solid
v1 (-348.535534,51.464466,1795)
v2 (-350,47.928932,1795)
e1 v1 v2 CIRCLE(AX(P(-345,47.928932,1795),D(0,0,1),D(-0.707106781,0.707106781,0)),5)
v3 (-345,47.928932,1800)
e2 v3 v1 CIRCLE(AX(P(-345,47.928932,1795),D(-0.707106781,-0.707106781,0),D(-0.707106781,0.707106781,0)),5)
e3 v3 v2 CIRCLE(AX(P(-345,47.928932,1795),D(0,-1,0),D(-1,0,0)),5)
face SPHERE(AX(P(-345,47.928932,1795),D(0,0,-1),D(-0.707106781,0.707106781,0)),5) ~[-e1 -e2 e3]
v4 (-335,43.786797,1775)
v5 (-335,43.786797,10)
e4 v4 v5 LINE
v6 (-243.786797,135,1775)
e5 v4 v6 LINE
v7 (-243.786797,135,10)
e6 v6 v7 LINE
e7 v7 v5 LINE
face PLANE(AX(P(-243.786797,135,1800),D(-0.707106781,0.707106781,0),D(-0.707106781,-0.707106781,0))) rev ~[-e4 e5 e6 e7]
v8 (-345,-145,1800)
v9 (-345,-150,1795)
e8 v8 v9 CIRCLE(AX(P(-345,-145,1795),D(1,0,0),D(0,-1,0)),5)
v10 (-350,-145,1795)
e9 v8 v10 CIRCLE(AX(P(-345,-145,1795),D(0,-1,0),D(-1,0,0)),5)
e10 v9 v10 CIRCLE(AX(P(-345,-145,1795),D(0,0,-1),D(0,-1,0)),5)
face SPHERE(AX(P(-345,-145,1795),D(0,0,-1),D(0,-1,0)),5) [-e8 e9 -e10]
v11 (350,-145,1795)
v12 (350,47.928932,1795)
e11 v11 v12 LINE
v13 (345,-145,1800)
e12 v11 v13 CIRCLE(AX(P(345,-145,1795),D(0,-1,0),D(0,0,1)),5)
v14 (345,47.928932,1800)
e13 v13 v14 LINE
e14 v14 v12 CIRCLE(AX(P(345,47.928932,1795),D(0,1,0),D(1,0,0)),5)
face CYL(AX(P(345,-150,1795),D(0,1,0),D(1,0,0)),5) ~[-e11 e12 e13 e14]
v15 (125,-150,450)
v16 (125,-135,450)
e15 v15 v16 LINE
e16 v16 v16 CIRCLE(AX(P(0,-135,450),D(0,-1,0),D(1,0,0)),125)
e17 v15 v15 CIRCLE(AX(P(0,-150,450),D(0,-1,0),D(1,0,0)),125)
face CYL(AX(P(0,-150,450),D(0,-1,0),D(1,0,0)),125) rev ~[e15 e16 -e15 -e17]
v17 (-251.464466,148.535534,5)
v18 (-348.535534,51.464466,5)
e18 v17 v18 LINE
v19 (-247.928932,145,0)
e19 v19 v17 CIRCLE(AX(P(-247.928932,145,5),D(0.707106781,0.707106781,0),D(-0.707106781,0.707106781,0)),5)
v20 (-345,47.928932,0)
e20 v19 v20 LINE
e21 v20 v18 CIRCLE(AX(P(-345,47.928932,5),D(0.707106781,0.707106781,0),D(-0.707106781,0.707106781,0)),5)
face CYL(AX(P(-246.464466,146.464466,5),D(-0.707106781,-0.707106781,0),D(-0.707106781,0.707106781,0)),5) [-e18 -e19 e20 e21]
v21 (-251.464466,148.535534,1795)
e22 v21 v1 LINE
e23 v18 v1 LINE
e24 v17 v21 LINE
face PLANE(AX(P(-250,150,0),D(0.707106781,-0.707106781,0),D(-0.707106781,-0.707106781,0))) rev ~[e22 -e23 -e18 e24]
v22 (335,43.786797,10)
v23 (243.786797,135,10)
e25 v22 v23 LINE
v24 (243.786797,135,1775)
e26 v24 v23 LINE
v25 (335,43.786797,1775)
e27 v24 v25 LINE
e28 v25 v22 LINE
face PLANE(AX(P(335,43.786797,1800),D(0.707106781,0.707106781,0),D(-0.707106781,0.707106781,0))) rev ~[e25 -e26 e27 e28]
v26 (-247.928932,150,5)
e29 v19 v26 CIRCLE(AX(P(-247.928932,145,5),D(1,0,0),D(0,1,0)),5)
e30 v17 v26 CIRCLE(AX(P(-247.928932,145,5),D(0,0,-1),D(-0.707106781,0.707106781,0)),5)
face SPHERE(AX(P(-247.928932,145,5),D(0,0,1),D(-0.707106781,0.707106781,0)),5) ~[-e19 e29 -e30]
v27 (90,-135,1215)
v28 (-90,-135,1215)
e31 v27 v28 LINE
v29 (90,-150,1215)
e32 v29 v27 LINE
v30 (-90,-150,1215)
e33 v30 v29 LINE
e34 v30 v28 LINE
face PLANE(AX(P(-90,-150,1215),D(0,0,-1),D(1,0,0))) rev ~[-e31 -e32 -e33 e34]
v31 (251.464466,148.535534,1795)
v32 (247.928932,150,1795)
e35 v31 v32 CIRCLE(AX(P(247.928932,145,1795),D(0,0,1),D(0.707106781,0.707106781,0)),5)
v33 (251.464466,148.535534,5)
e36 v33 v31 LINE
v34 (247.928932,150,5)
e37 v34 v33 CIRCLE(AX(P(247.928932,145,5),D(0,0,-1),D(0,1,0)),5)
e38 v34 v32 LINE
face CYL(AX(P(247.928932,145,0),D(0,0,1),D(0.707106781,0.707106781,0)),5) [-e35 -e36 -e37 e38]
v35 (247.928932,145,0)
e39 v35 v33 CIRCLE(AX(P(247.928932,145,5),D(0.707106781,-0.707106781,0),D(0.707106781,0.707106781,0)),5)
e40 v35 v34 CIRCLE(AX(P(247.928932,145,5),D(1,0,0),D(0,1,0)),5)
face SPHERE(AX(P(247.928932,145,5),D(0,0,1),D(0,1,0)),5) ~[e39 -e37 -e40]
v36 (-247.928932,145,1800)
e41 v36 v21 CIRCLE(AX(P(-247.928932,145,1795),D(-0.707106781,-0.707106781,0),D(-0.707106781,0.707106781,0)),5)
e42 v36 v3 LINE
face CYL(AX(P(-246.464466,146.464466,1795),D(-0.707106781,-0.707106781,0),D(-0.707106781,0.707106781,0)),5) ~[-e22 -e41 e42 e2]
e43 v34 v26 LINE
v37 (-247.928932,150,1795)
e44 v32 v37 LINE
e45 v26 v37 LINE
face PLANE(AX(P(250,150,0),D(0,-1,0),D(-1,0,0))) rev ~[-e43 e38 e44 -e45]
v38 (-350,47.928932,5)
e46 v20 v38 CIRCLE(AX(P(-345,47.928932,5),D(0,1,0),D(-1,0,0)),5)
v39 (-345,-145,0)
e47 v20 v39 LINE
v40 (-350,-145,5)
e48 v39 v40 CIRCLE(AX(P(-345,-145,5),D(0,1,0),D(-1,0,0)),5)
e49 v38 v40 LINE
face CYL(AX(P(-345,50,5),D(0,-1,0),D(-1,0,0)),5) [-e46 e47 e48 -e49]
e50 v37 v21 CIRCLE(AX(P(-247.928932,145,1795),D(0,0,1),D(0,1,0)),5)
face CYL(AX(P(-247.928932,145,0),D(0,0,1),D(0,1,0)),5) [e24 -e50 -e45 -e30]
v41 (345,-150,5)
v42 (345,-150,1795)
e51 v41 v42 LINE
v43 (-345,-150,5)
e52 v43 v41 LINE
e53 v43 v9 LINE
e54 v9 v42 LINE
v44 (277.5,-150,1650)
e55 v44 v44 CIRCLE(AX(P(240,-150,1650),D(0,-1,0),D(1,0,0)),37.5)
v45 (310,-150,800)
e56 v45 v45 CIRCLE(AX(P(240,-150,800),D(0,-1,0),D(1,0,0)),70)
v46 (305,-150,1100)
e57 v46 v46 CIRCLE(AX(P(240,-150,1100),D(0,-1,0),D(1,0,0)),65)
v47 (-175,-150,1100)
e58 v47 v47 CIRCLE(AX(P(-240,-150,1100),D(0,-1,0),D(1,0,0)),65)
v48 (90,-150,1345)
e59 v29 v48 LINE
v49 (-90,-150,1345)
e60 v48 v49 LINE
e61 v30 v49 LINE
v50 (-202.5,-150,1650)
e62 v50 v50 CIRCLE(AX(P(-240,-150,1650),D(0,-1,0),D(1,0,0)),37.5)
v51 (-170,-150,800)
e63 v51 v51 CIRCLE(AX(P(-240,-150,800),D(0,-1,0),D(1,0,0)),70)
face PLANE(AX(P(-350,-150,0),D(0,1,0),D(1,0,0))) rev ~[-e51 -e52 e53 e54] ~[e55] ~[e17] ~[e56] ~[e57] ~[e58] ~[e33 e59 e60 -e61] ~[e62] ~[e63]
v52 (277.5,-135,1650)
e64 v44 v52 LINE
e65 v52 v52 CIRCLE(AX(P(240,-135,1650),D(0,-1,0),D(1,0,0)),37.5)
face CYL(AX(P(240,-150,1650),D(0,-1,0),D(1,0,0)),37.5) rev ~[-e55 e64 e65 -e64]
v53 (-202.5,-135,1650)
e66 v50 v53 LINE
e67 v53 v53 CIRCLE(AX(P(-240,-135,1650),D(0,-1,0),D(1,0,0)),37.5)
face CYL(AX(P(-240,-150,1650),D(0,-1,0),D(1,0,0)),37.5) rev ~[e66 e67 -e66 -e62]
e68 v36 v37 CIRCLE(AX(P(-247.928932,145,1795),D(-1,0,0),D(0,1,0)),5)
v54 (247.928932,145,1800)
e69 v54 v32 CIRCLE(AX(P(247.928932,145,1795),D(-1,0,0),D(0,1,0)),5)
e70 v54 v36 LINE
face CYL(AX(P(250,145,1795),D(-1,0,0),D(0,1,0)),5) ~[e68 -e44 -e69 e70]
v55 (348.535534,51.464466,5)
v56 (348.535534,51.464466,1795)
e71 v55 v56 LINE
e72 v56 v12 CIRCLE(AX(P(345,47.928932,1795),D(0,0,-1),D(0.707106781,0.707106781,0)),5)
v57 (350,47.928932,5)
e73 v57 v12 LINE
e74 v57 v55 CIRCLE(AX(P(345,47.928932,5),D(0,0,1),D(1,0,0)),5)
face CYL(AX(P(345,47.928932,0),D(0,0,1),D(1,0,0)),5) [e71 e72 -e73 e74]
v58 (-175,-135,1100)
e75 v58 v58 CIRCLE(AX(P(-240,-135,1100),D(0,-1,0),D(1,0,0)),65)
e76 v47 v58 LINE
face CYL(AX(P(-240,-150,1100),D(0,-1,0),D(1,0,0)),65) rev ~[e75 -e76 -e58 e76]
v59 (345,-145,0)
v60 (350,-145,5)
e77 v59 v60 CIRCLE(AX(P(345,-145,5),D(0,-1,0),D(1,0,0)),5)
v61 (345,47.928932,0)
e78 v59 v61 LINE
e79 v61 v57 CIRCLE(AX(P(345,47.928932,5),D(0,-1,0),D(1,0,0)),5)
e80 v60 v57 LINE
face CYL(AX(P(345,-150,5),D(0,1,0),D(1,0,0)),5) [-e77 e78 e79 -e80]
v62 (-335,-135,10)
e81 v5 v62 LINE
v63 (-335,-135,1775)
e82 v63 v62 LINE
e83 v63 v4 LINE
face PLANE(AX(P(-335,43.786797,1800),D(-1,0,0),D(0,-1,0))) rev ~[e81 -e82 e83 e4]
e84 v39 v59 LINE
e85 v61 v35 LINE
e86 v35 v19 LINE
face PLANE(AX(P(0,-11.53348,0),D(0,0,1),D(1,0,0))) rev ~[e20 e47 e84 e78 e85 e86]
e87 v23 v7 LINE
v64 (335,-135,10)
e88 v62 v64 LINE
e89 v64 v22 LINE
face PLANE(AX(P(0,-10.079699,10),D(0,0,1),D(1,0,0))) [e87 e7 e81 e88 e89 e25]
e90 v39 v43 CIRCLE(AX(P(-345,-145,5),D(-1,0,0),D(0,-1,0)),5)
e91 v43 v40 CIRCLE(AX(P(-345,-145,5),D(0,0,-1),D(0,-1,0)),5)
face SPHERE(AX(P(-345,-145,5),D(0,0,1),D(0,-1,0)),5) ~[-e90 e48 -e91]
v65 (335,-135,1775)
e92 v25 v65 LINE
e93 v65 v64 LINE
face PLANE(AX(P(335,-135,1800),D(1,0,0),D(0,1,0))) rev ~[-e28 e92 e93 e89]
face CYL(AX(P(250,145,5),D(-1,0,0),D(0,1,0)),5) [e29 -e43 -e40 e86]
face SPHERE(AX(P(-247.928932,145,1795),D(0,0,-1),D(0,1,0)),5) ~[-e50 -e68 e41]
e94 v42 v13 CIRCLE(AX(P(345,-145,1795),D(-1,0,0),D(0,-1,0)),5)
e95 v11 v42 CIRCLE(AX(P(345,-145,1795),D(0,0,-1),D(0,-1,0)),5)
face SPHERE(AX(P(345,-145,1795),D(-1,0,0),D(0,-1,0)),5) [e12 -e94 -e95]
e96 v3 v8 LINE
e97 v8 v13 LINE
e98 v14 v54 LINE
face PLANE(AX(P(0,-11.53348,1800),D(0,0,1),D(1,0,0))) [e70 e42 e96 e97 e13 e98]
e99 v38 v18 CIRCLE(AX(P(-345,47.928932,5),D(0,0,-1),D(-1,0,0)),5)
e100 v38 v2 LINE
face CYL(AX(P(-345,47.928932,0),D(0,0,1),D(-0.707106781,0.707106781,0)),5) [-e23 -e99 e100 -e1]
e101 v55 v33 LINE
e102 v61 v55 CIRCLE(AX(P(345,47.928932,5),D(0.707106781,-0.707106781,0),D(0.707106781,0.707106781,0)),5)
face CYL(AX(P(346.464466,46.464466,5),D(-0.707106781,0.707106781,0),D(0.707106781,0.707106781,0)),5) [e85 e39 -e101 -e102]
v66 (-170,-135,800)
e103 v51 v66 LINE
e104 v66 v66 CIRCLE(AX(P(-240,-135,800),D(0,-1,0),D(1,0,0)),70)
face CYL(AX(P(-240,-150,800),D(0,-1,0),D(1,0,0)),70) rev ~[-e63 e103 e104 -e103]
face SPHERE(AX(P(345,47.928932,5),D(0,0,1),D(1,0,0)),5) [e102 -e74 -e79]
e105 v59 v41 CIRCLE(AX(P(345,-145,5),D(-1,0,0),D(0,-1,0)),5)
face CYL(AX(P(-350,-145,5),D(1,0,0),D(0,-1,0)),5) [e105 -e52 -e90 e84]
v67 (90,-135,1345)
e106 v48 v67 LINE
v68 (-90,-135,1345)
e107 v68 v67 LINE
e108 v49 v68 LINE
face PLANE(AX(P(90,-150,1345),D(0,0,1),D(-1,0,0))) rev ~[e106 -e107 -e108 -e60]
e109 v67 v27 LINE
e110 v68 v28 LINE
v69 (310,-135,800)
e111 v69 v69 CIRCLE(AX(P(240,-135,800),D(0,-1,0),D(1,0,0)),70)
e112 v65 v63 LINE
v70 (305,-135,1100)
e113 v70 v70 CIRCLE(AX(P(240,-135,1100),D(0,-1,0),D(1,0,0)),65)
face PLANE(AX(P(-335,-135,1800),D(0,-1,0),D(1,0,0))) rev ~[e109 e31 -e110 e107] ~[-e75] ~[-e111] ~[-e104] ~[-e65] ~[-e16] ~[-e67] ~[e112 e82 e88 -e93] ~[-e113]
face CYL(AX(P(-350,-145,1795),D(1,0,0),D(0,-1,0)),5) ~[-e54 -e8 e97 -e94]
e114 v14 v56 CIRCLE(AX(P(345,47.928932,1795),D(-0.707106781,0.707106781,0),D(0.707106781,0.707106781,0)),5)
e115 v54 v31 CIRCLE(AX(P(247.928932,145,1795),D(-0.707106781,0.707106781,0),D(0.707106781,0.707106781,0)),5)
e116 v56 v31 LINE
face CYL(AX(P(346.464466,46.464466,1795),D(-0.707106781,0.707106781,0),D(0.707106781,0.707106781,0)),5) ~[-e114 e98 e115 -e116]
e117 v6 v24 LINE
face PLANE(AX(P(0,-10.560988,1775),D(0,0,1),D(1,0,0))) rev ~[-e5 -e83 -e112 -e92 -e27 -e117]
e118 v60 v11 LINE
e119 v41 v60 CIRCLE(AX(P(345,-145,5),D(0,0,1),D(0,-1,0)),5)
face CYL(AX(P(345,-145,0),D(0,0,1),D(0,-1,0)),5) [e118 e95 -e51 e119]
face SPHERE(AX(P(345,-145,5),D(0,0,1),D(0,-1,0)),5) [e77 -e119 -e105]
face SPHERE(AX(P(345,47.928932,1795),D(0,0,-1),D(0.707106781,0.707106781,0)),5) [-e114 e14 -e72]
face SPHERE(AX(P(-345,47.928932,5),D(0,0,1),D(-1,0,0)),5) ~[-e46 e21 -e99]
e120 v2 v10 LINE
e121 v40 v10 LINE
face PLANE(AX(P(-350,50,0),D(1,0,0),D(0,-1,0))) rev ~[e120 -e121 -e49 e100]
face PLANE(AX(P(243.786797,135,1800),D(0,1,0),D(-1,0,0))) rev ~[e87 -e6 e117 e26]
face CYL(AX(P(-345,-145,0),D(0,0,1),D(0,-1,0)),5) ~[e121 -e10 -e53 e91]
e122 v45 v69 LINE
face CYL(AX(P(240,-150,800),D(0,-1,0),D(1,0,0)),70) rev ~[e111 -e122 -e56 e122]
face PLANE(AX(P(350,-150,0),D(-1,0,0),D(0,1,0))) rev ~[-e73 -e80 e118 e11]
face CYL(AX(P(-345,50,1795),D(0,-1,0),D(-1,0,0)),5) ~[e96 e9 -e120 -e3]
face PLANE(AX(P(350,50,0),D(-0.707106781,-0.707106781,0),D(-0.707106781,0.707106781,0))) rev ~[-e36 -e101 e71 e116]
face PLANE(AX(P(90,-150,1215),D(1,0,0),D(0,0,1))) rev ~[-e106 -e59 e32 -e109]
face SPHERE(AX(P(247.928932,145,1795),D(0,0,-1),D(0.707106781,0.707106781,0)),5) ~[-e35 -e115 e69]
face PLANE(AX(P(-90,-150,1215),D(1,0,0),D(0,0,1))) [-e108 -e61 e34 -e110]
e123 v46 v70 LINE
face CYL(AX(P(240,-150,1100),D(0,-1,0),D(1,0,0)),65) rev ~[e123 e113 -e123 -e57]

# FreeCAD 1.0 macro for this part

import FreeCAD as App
import Part
import Sketcher


def add_polygon(sketch, points):
    """Adds a closed chain of lines whose ends are joined by coincident constraints."""
    first, n = sketch.GeometryCount, len(points)
    for a, b in zip(points, points[1:] + points[:1]):
        sketch.addGeometry(Part.LineSegment(App.Vector(*a, 0), App.Vector(*b, 0)), False)
    for i in range(n):
        sketch.addConstraint(Sketcher.Constraint("Coincident", first + i, 2, first + (i + 1) % n, 1))

doc = App.newDocument("Part")
body = doc.addObject("PartDesign::Body", "Body")

# Sketch on XY plane
sketch1 = body.newObject("Sketcher::SketchObject", "Sketch")
sketch1.AttachmentSupport = (doc.getObject("XY_Plane"), [""])
sketch1.MapMode = "FlatFace"
add_polygon(sketch1, [(-350, -150), (350, -150), (350, 50), (250, 150), (-250, 150), (-350, 50)])  # lines 0-5
sketch1.addConstraint([
    Sketcher.Constraint("Horizontal", 0),
    Sketcher.Constraint("Vertical", 1),
    Sketcher.Constraint("Horizontal", 3),
    Sketcher.Constraint("Vertical", 5),
    Sketcher.Constraint("Symmetric", 1, 2, 4, 2, -2),
    Sketcher.Constraint("Perpendicular", 2, 4),
    Sketcher.Constraint("Equal", 2, 4),
    Sketcher.Constraint("DistanceX", 0, 1, 0, 2, 700.0),
    Sketcher.Constraint("DistanceX", 3, 2, 3, 1, 500.0),
    Sketcher.Constraint("DistanceY", 1, 1, 1, 2, 200.0),
    Sketcher.Constraint("DistanceY", 0, 2, -1, 1, 150.0),
])
pad1 = body.newObject("PartDesign::Pad", "Pad")
pad1.Profile = sketch1
pad1.Length = 1800
doc.recompute()

fillet = body.newObject("PartDesign::Fillet", "Fillet")
fillet.Base = (pad1, ["Edge1"])
fillet.UseAllEdges = True
fillet.Radius = 5

# Sketch on XZ plane
sketch2 = body.newObject("Sketcher::SketchObject", "Sketch001")
sketch2.AttachmentSupport = (doc.getObject("XZ_Plane"), [""])
sketch2.MapMode = "FlatFace"
sketch2.AttachmentOffset = App.Placement(App.Vector(0, 0, 150), App.Rotation())
add_polygon(sketch2, [(-90, 1345), (-90, 1215), (90, 1215), (90, 1345)])  # lines 0-3
sketch2.addConstraint([
    Sketcher.Constraint("Vertical", 0),
    Sketcher.Constraint("Horizontal", 1),
    Sketcher.Constraint("Vertical", 2),
    Sketcher.Constraint("Horizontal", 3),
    Sketcher.Constraint("DistanceX", 1, 1, 1, 2, 180.0),
    Sketcher.Constraint("DistanceY", 0, 2, 0, 1, 130.0),
    Sketcher.Constraint("DistanceX", 0, 2, -1, 1, 90.0),
    Sketcher.Constraint("DistanceY", -1, 1, 0, 2, 1215.0),
])
pocket1 = body.newObject("PartDesign::Pocket", "Pocket")
pocket1.Profile = sketch2
pocket1.Length = 25

# Sketch on XY plane
sketch3 = body.newObject("Sketcher::SketchObject", "Sketch002")
sketch3.AttachmentSupport = (doc.getObject("XY_Plane"), [""])
sketch3.MapMode = "FlatFace"
sketch3.AttachmentOffset = App.Placement(App.Vector(0, 0, 1800), App.Rotation())
add_polygon(sketch3, [(335, 44), (244, 135), (-244, 135), (-335, 44), (-335, -135), (335, -135)])  # lines 0-5
sketch3.addConstraint([
    Sketcher.Constraint("Horizontal", 1),
    Sketcher.Constraint("Vertical", 3),
    Sketcher.Constraint("Horizontal", 4),
    Sketcher.Constraint("Vertical", 5),
    Sketcher.Constraint("Symmetric", 2, 2, 5, 2, -2),
    Sketcher.Constraint("Perpendicular", 0, 2),
    Sketcher.Constraint("Equal", 0, 2),
    Sketcher.Constraint("DistanceX", 4, 1, 4, 2, 670.0),
    Sketcher.Constraint("DistanceY", -1, 1, 0, 2, 135.0),
    Sketcher.Constraint("DistanceY", 3, 2, -1, 1, 135.0),
    Sketcher.Constraint("Distance", 0, 128.994949),
])
pocket2 = body.newObject("PartDesign::Pocket", "Pocket001")
pocket2.Profile = sketch3
pocket2.Length = 1790

# Sketch on XZ plane
sketch4 = body.newObject("Sketcher::SketchObject", "Sketch003")
sketch4.AttachmentSupport = (doc.getObject("XZ_Plane"), [""])
sketch4.MapMode = "FlatFace"
sketch4.AttachmentOffset = App.Placement(App.Vector(0, 0, 150), App.Rotation())
sketch4.addGeometry([
    Part.Circle(App.Vector(240, 1650, 0), App.Vector(0, 0, 1), 38),  # 0
    Part.Circle(App.Vector(240, 1100, 0), App.Vector(0, 0, 1), 65),  # 1
    Part.Circle(App.Vector(0, 450, 0), App.Vector(0, 0, 1), 125),  # 2
    Part.Circle(App.Vector(240, 800, 0), App.Vector(0, 0, 1), 70),  # 3
    Part.Circle(App.Vector(-240, 1650, 0), App.Vector(0, 0, 1), 38),  # 4
    Part.Circle(App.Vector(-240, 1100, 0), App.Vector(0, 0, 1), 65),  # 5
    Part.Circle(App.Vector(-240, 800, 0), App.Vector(0, 0, 1), 70),  # 6
], False)
sketch4.addConstraint([
    Sketcher.Constraint("Equal", 0, 4),
    Sketcher.Constraint("Equal", 1, 5),
    Sketcher.Constraint("Equal", 3, 6),
    Sketcher.Constraint("Symmetric", 0, 3, 4, 3, -2),
    Sketcher.Constraint("Symmetric", 1, 3, 5, 3, -2),
    Sketcher.Constraint("Symmetric", 3, 3, 6, 3, -2),
    Sketcher.Constraint("PointOnObject", 2, 3, -2),
    Sketcher.Constraint("Vertical", 0, 3, 1, 3),
    Sketcher.Constraint("Vertical", 1, 3, 3, 3),
    Sketcher.Constraint("Diameter", 0, 75.0),
    Sketcher.Constraint("Diameter", 1, 130.0),
    Sketcher.Constraint("Diameter", 2, 250.0),
    Sketcher.Constraint("Diameter", 3, 140.0),
    Sketcher.Constraint("DistanceX", -1, 1, 0, 3, 240.0),
    Sketcher.Constraint("DistanceY", -1, 1, 0, 3, 1650.0),
    Sketcher.Constraint("DistanceY", -1, 1, 1, 3, 1100.0),
    Sketcher.Constraint("DistanceY", -1, 1, 2, 3, 450.0),
    Sketcher.Constraint("DistanceY", -1, 1, 3, 3, 800.0),
])
pocket3 = body.newObject("PartDesign::Pocket", "Pocket002")
pocket3.Profile = sketch4
pocket3.Length = 15

# Sketch on XY plane
sketch5 = body.newObject("Sketcher::SketchObject", "Sketch004")
sketch5.AttachmentSupport = (doc.getObject("XY_Plane"), [""])
sketch5.MapMode = "FlatFace"
sketch5.AttachmentOffset = App.Placement(App.Vector(0, 0, 1775), App.Rotation())
add_polygon(sketch5, [(340, 46), (246, 140), (-246, 140), (-340, 46), (-340, -140), (340, -140)])  # lines 0-5
sketch5.addConstraint([
    Sketcher.Constraint("Horizontal", 1),
    Sketcher.Constraint("Vertical", 3),
    Sketcher.Constraint("Horizontal", 4),
    Sketcher.Constraint("Vertical", 5),
    Sketcher.Constraint("Symmetric", 2, 2, 5, 2, -2),
    Sketcher.Constraint("Perpendicular", 0, 2),
    Sketcher.Constraint("Equal", 0, 2),
    Sketcher.Constraint("DistanceX", 4, 1, 4, 2, 680.0),
    Sketcher.Constraint("DistanceY", -1, 1, 0, 2, 140.0),
    Sketcher.Constraint("DistanceY", 3, 2, -1, 1, 140.0),
    Sketcher.Constraint("DistanceX", 1, 2, 1, 1, 491.715729),
])
pad2 = body.newObject("PartDesign::Pad", "Pad001")
pad2.Profile = sketch5
pad2.Length = 25

doc.recompute()
